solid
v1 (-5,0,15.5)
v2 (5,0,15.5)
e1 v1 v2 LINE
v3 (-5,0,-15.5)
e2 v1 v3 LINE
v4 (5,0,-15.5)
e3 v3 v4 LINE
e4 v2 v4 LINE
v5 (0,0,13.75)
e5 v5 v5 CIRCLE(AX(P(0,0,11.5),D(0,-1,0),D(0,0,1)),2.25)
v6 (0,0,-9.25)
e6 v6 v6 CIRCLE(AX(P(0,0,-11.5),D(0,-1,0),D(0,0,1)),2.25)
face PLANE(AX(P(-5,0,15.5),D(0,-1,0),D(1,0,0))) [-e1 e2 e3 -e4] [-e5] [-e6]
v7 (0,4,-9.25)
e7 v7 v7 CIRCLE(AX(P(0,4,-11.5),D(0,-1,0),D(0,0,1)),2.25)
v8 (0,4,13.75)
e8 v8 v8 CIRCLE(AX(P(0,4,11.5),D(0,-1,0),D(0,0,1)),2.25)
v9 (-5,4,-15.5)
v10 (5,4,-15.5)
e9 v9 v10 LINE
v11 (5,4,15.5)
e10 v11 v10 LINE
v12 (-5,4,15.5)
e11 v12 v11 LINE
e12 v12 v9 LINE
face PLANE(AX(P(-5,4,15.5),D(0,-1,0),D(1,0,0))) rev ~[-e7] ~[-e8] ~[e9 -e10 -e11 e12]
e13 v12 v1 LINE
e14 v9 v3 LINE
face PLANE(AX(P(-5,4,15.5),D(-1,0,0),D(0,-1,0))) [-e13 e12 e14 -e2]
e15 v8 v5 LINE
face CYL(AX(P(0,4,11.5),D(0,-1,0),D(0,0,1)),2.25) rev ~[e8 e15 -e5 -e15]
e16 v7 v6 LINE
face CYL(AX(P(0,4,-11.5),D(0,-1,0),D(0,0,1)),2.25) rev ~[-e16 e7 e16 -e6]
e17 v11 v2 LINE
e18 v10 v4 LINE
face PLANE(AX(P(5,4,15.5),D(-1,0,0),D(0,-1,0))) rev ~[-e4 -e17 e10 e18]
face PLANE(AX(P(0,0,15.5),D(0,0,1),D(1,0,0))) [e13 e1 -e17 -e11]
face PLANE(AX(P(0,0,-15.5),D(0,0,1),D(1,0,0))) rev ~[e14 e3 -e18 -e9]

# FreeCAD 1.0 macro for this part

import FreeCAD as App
import Part
import Sketcher

V = App.Vector

doc = App.newDocument("Part")
body = doc.addObject("PartDesign::Body", "Body")

sketch1 = body.newObject("Sketcher::SketchObject", "Sketch")
sketch1.AttachmentSupport = (doc.getObject("XY_Plane"), [""])
sketch1.MapMode = "FlatFace"
sketch1.AttachmentOffset = App.Placement(V(0, 0, 15.5), App.Rotation())
sketch1.addGeometry([
    Part.LineSegment(V(5, 0, 0), V(5, 4, 0)),
    Part.LineSegment(V(5, 4, 0), V(-5, 4, 0)),
    Part.LineSegment(V(-5, 4, 0), V(-5, 0, 0)),
    Part.LineSegment(V(-5, 0, 0), V(5, 0, 0)),
], False)
sketch1.addConstraint([
    Sketcher.Constraint("Coincident", 0, 2, 1, 1),
    Sketcher.Constraint("Coincident", 1, 2, 2, 1),
    Sketcher.Constraint("Coincident", 2, 2, 3, 1),
    Sketcher.Constraint("Coincident", 3, 2, 0, 1),
    Sketcher.Constraint("Vertical", 0),
    Sketcher.Constraint("Horizontal", 1),
    Sketcher.Constraint("Vertical", 2),
    Sketcher.Constraint("Horizontal", 3),
    Sketcher.Constraint("Symmetric", 2, 2, 3, 2, -1, 1),
    Sketcher.Constraint("DistanceX", 1, 2, 1, 1, 10.0),
    Sketcher.Constraint("DistanceY", 0, 1, 0, 2, 4.0),
])
pad1 = body.newObject("PartDesign::Pad", "Pad")
pad1.Profile = sketch1
pad1.Length = 31
pad1.Reversed = True

sketch2 = body.newObject("Sketcher::SketchObject", "Sketch001")
sketch2.AttachmentSupport = (doc.getObject("XZ_Plane"), [""])
sketch2.MapMode = "FlatFace"
sketch2.AttachmentOffset = App.Placement(V(0, 0, -4), App.Rotation())
sketch2.addGeometry(Part.Circle(V(0, -11.5, 0), V(0, 0, 1), 2.25), False)
sketch2.addConstraint([
    Sketcher.Constraint("PointOnObject", 0, 3, -2),
    Sketcher.Constraint("Diameter", 0, 4.5),
    Sketcher.Constraint("DistanceY", 0, 3, -1, 1, 11.5),
])
doc.recompute()
hole = body.newObject("PartDesign::Hole", "Hole")
hole.Profile = sketch2
hole.ThreadType = "None"
hole.Diameter = 4.5
hole.DepthType = "Dimension"
hole.Depth = 4
hole.DrillPoint = "Flat"
hole.Reversed = True

sketch3 = body.newObject("Sketcher::SketchObject", "Sketch002")
sketch3.AttachmentSupport = (doc.getObject("XZ_Plane"), [""])
sketch3.MapMode = "FlatFace"
sketch3.AttachmentOffset = App.Placement(V(0, 0, -4), App.Rotation())
sketch3.addGeometry(Part.Circle(V(0, 11.5, 0), V(0, 0, 1), 2.25), False)
sketch3.addConstraint([
    Sketcher.Constraint("PointOnObject", 0, 3, -2),
    Sketcher.Constraint("Diameter", 0, 4.5),
    Sketcher.Constraint("DistanceY", -1, 1, 0, 3, 11.5),
])
doc.recompute()
hole2 = body.newObject("PartDesign::Hole", "Hole001")
hole2.Profile = sketch3
hole2.ThreadType = "None"
hole2.Diameter = 4.5
hole2.DepthType = "Dimension"
hole2.Depth = 4
hole2.DrillPoint = "Flat"
hole2.Reversed = True

doc.recompute()
